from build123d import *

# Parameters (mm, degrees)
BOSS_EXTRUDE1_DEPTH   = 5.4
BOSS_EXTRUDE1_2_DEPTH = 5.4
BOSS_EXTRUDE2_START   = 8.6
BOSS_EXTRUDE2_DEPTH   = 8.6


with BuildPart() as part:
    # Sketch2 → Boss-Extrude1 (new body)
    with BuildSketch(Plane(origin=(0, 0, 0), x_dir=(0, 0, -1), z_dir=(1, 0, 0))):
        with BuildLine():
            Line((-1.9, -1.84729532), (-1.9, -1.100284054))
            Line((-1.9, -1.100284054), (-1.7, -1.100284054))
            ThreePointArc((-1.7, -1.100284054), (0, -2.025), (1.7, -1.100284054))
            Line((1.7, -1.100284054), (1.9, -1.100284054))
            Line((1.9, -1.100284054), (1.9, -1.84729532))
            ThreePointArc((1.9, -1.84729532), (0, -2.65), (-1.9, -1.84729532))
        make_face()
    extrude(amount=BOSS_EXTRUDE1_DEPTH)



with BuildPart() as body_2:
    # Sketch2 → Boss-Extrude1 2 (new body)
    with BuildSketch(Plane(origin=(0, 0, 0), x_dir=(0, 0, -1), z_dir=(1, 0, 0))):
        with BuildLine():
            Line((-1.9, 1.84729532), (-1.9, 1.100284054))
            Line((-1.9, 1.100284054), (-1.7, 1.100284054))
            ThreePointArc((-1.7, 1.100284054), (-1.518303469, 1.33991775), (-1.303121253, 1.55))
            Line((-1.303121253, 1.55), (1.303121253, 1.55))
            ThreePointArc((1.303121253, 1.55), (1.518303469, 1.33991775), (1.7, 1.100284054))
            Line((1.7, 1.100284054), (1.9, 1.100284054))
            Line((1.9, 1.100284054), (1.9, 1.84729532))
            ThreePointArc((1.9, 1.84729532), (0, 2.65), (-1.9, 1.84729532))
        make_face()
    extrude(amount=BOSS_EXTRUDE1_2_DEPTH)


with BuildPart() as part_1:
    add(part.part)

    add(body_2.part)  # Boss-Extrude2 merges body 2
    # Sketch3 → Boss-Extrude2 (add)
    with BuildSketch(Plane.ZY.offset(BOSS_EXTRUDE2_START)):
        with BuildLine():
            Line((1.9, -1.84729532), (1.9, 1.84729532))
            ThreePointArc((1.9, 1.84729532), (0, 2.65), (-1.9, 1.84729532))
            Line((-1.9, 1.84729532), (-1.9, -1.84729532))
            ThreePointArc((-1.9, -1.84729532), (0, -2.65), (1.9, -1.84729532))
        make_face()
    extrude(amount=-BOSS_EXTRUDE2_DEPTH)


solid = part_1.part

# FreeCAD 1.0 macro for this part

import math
import FreeCAD as App
import Part
import Sketcher

doc = App.newDocument("Part")
body = doc.addObject("PartDesign::Body", "Body")

# Sketch on YZ plane
sketch1 = body.newObject("Sketcher::SketchObject", "Sketch")
sketch1.AttachmentSupport = (doc.getObject("YZ_Plane"), [""])
sketch1.MapMode = "FlatFace"
sketch1.addGeometry([
    Part.LineSegment(App.Vector(-1.1, 1.9, 0), App.Vector(-1.85, 1.9, 0)),  # 0
    Part.ArcOfCircle(Part.Circle(App.Vector(0, 0, 0), App.Vector(0, 0, 1), 2.65), math.radians(134), math.radians(226)),  # 1
    Part.LineSegment(App.Vector(-1.85, -1.9, 0), App.Vector(-1.1, -1.9, 0)),  # 2
    Part.LineSegment(App.Vector(-1.1, -1.9, 0), App.Vector(-1.1, -1.7, 0)),  # 3
    Part.ArcOfCircle(Part.Circle(App.Vector(0, 0, 0), App.Vector(0, 0, 1), 2.02), math.radians(123), math.radians(237)),  # 4
    Part.LineSegment(App.Vector(-1.1, 1.7, 0), App.Vector(-1.1, 1.9, 0)),  # 5
], False)
sketch1.addConstraint([
    Sketcher.Constraint("Coincident", 0, 2, 1, 1),
    Sketcher.Constraint("Coincident", 1, 2, 2, 1),
    Sketcher.Constraint("Coincident", 2, 2, 3, 1),
    Sketcher.Constraint("Coincident", 3, 2, 4, 2),
    Sketcher.Constraint("Coincident", 4, 1, 5, 1),
    Sketcher.Constraint("Coincident", 5, 2, 0, 1),
    Sketcher.Constraint("Horizontal", 0),
    Sketcher.Constraint("Horizontal", 2),
    Sketcher.Constraint("Vertical", 3),
    Sketcher.Constraint("Vertical", 5),
    Sketcher.Constraint("Coincident", 1, 3, -1, 1),
    Sketcher.Constraint("Coincident", 4, 3, -1, 1),
    Sketcher.Constraint("Symmetric", 2, 2, 5, 2, -1),
    Sketcher.Constraint("Radius", 1, 2.65),
    Sketcher.Constraint("DistanceY", 3, 1, 3, 2, 0.2),
    Sketcher.Constraint("Radius", 4, 2.025),
    Sketcher.Constraint("DistanceY", -1, 1, 0, 2, 1.9),
])
pad1 = body.newObject("PartDesign::Pad", "Pad")
pad1.Profile = sketch1
pad1.Length = 5.4
body2 = doc.addObject("PartDesign::Body", "Body001")

# Sketch on YZ plane
sketch2 = body2.newObject("Sketcher::SketchObject", "Sketch001")
sketch2.AttachmentSupport = (doc.getObject("YZ_Plane001"), [""])
sketch2.MapMode = "FlatFace"
sketch2.addGeometry([
    Part.LineSegment(App.Vector(1.85, 1.9, 0), App.Vector(1.1, 1.9, 0)),  # 0
    Part.LineSegment(App.Vector(1.1, 1.9, 0), App.Vector(1.1, 1.7, 0)),  # 1
    Part.ArcOfCircle(Part.Circle(App.Vector(0, 0, 0), App.Vector(0, 0, 1), 2.02), math.radians(40.05), math.radians(57.09)),  # 2
    Part.LineSegment(App.Vector(1.55, 1.3, 0), App.Vector(1.55, -1.3, 0)),  # 3
    Part.ArcOfCircle(Part.Circle(App.Vector(0, 0, 0), App.Vector(0, 0, 1), 2.02), math.radians(-57.09), math.radians(-40.05)),  # 4
    Part.LineSegment(App.Vector(1.1, -1.7, 0), App.Vector(1.1, -1.9, 0)),  # 5
    Part.LineSegment(App.Vector(1.1, -1.9, 0), App.Vector(1.85, -1.9, 0)),  # 6
    Part.ArcOfCircle(Part.Circle(App.Vector(0, 0, 0), App.Vector(0, 0, 1), 2.65), math.radians(-46), math.radians(46)),  # 7
], False)
sketch2.addConstraint([
    Sketcher.Constraint("Coincident", 0, 2, 1, 1),
    Sketcher.Constraint("Coincident", 1, 2, 2, 2),
    Sketcher.Constraint("Coincident", 2, 1, 3, 1),
    Sketcher.Constraint("Coincident", 3, 2, 4, 2),
    Sketcher.Constraint("Coincident", 4, 1, 5, 1),
    Sketcher.Constraint("Coincident", 5, 2, 6, 1),
    Sketcher.Constraint("Coincident", 6, 2, 7, 1),
    Sketcher.Constraint("Coincident", 7, 2, 0, 1),
    Sketcher.Constraint("Horizontal", 0),
    Sketcher.Constraint("Vertical", 1),
    Sketcher.Constraint("Vertical", 3),
    Sketcher.Constraint("Vertical", 5),
    Sketcher.Constraint("Horizontal", 6),
    Sketcher.Constraint("Coincident", 2, 3, -1, 1),
    Sketcher.Constraint("Coincident", 4, 3, -1, 1),
    Sketcher.Constraint("Coincident", 7, 3, -1, 1),
    Sketcher.Constraint("Equal", 2, 4),
    Sketcher.Constraint("Symmetric", 0, 2, 5, 2, -1),
    Sketcher.Constraint("Radius", 7, 2.65),
    Sketcher.Constraint("DistanceY", 1, 2, 1, 1, 0.2),
    Sketcher.Constraint("Radius", 2, 2.025),
    Sketcher.Constraint("DistanceY", -1, 1, 0, 2, 1.9),
    Sketcher.Constraint("DistanceX", -1, 1, 2, 1, 1.55),
])
pad2 = body2.newObject("PartDesign::Pad", "Pad001")
pad2.Profile = sketch2
pad2.Length = 5.4
body.AllowCompound = True
doc.recompute()

boolean = body.newObject("PartDesign::Boolean", "Boolean")
boolean.Type = "Fuse"
boolean.addObjects([body2])

# Sketch on YZ plane
sketch3 = body.newObject("Sketcher::SketchObject", "Sketch002")
sketch3.AttachmentSupport = (doc.getObject("YZ_Plane"), [""])
sketch3.MapMode = "FlatFace"
sketch3.AttachmentOffset = App.Placement(App.Vector(0, 0, -8.6), App.Rotation())
sketch3.addGeometry([
    Part.LineSegment(App.Vector(-1.8, 1.9, 0), App.Vector(1.8, 1.9, 0)),
    Part.ArcOfCircle(Part.Circle(App.Vector(0, 0, 0), App.Vector(0, 0, 1), 2.6), math.radians(-46), math.radians(46)),
    Part.LineSegment(App.Vector(1.8, -1.9, 0), App.Vector(-1.8, -1.9, 0)),
    Part.ArcOfCircle(Part.Circle(App.Vector(0, 0, 0), App.Vector(0, 0, 1), 2.6), math.radians(134), math.radians(226)),
], False)
sketch3.addConstraint([
    Sketcher.Constraint("Coincident", 0, 2, 1, 2),
    Sketcher.Constraint("Coincident", 1, 1, 2, 1),
    Sketcher.Constraint("Coincident", 2, 2, 3, 2),
    Sketcher.Constraint("Coincident", 3, 1, 0, 1),
    Sketcher.Constraint("Horizontal", 0),
    Sketcher.Constraint("Horizontal", 2),
    Sketcher.Constraint("Coincident", 1, 3, -1, 1),
    Sketcher.Constraint("Coincident", 3, 3, -1, 1),
    Sketcher.Constraint("Equal", 1, 3),
    Sketcher.Constraint("Vertical", 0, 2, 1, 1),
    Sketcher.Constraint("Radius", 1, 2.65),
    Sketcher.Constraint("DistanceY", -1, 1, 0, 2, 1.9),
])
pad3 = body.newObject("PartDesign::Pad", "Pad002")
pad3.Profile = sketch3
pad3.Length = 8.6

doc.recompute()
